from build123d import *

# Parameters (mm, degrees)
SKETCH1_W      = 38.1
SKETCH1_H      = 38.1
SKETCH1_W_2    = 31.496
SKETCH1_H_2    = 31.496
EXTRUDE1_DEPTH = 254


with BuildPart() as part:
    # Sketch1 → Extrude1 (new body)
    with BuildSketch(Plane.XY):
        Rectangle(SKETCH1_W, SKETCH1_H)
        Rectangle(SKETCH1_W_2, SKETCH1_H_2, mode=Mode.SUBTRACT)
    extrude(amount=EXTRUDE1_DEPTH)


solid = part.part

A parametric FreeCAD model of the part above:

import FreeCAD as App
import Part
import Sketcher

V = App.Vector
Q = App.Units.Quantity


def add_polygon(sketch, points):
    """Adds a closed chain of lines whose ends are joined by coincident constraints."""
    first, n = sketch.GeometryCount, len(points)
    for a, b in zip(points, points[1:] + points[:1]):
        sketch.addGeometry(Part.LineSegment(App.Vector(*a, 0), App.Vector(*b, 0)), False)
    for i in range(n):
        sketch.addConstraint(Sketcher.Constraint("Coincident", first + i, 2, first + (i + 1) % n, 1))

doc = App.newDocument("Part")
body = doc.addObject("PartDesign::Body", "Body")

sketch1 = body.newObject("Sketcher::SketchObject", "Sketch")
sketch1.AttachmentSupport = (doc.getObject("XY_Plane"), [""])
sketch1.MapMode = "FlatFace"
add_polygon(sketch1, [(-19, 19), (-19, -19), (19, -19), (19, 19)])
add_polygon(sketch1, [(16, -16), (-16, -16), (-16, 16), (16, 16)])
sketch1.addConstraint([
    Sketcher.Constraint("Vertical", 0),
    Sketcher.Constraint("Horizontal", 1),
    Sketcher.Constraint("Vertical", 2),
    Sketcher.Constraint("Horizontal", 3),
    Sketcher.Constraint("Horizontal", 4),
    Sketcher.Constraint("Vertical", 5),
    Sketcher.Constraint("Horizontal", 6),
    Sketcher.Constraint("Vertical", 7),
    Sketcher.Constraint("Symmetric", 0, 2, 2, 2, -1, 1),
    Sketcher.Constraint("Symmetric", 4, 2, 6, 2, -1, 1),
    Sketcher.Constraint("Equal", 3, 0),
    Sketcher.Constraint("Equal", 6, 5),
    Sketcher.Constraint("DistanceX", 1, 1, 1, 2, Q("1.5 in")),
    Sketcher.Constraint("DistanceX", 4, 2, 4, 1, Q("1.24 in")),
])
pad1 = body.newObject("PartDesign::Pad", "Pad")
pad1.Profile = sketch1
pad1.Length = Q("10 in")

doc.recompute()
